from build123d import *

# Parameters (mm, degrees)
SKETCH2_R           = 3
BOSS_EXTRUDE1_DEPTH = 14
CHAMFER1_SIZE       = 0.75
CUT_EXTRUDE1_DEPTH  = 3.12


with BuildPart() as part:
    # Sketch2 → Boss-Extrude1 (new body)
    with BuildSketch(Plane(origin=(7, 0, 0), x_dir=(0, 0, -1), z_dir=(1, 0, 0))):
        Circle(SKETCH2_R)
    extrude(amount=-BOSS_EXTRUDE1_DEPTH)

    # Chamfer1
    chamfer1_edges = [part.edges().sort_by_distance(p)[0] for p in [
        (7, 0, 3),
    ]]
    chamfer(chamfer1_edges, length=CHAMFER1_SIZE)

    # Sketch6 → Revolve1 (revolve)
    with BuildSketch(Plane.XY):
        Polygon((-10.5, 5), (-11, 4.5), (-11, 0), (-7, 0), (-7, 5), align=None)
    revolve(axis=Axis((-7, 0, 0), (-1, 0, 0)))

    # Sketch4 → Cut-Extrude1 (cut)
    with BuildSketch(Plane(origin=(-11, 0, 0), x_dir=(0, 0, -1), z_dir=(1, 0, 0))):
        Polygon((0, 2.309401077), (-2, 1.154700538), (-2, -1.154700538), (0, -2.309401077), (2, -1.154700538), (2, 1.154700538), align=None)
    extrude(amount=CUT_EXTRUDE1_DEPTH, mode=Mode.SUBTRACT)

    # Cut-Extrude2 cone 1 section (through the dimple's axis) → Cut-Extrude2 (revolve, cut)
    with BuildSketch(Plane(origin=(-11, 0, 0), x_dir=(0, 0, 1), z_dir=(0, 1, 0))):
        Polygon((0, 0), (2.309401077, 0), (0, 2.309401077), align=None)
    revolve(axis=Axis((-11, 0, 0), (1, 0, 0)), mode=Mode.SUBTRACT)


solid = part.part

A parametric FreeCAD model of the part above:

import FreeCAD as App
import Part
import Sketcher
from FreeCAD import Vector
Q = App.Units.Quantity


def edges_at(feature, points):
    """Names of the edges that pass closest to the given points."""
    edges = feature.Shape.Edges
    near = lambda p: min(range(len(edges)), key=lambda i: edges[i].distToShape(Part.Vertex(*p))[0])
    return sorted({f"Edge{near(p) + 1}" for p in points})


def add_polygon(sketch, points):
    """Adds a closed chain of lines whose ends are joined by coincident constraints."""
    first, n = sketch.GeometryCount, len(points)
    for a, b in zip(points, points[1:] + points[:1]):
        sketch.addGeometry(Part.LineSegment(App.Vector(*a, 0), App.Vector(*b, 0)), False)
    for i in range(n):
        sketch.addConstraint(Sketcher.Constraint("Coincident", first + i, 2, first + (i + 1) % n, 1))

doc = App.newDocument("Part")
body = doc.addObject("PartDesign::Body", "Body")

# Sketch on YZ plane
sketch1 = body.newObject("Sketcher::SketchObject", "Sketch")
sketch1.AttachmentSupport = (doc.getObject("YZ_Plane"), [""])
sketch1.MapMode = "FlatFace"
sketch1.AttachmentOffset = App.Placement(Vector(0, 0, 7), App.Rotation())
sketch1.addGeometry(Part.Circle(Vector(0, 0, 0), Vector(0, 0, 1), 3), False)
sketch1.addConstraint(Sketcher.Constraint("Coincident", 0, 3, -1, 1))
sketch1.addConstraint(Sketcher.Constraint("Diameter", 0, Q("6 mm")))
pad1 = body.newObject("PartDesign::Pad", "Pad")
pad1.Profile = sketch1
pad1.Length = 14
pad1.Reversed = True
doc.recompute()

chamfer = body.newObject("PartDesign::Chamfer", "Chamfer")
chamfer.Base = (pad1, edges_at(pad1, [(7, 0, 3)]))
chamfer.Size = 0.75

# Sketch on XY plane
sketch2 = body.newObject("Sketcher::SketchObject", "Sketch001")
sketch2.AttachmentSupport = (doc.getObject("XY_Plane"), [""])
sketch2.MapMode = "FlatFace"
add_polygon(sketch2, [(-10.5, 5), (-11, 4.5), (-11, 0), (-7, 0), (-7, 5)])  # lines 0-4
sketch2.addConstraint(Sketcher.Constraint("Vertical", 1))
sketch2.addConstraint(Sketcher.Constraint("Horizontal", 2))
sketch2.addConstraint(Sketcher.Constraint("Vertical", 3))
sketch2.addConstraint(Sketcher.Constraint("Horizontal", 4))
sketch2.addConstraint(Sketcher.Constraint("PointOnObject", 1, 2, -1))
sketch2.addConstraint(Sketcher.Constraint("DistanceX", 2, 1, 2, 2, Q("4 mm")))
sketch2.addConstraint(Sketcher.Constraint("DistanceY", 3, 1, 3, 2, Q("5 mm")))
sketch2.addConstraint(Sketcher.Constraint("Angle", 0, Q("-135 deg")))
sketch2.addConstraint(Sketcher.Constraint("DistanceX", 4, 2, 4, 1, Q("3.5 mm")))
sketch2.addConstraint(Sketcher.Constraint("DistanceX", 0, 2, -1, 1, Q("11 mm")))
revolution = body.newObject("PartDesign::Revolution", "Revolution")
revolution.Profile = sketch2
revolution.ReferenceAxis = (sketch2, ["H_Axis"])
revolution.Angle = 360

# Sketch on YZ plane
sketch3 = body.newObject("Sketcher::SketchObject", "Sketch002")
sketch3.AttachmentSupport = (doc.getObject("YZ_Plane"), [""])
sketch3.MapMode = "FlatFace"
sketch3.AttachmentOffset = App.Placement(Vector(0, 0, -11), App.Rotation())
add_polygon(sketch3, [(2.309401, 0), (1.154701, 2), (-1.154701, 2), (-2.309401, 0), (-1.154701, -2), (1.154701, -2)])  # lines 0-5
sketch3.addConstraint(Sketcher.Constraint("Horizontal", 1))
sketch3.addConstraint(Sketcher.Constraint("Horizontal", 4))
sketch3.addConstraint(Sketcher.Constraint("Symmetric", 0, 2, 3, 2, -1, 1))
sketch3.addConstraint(Sketcher.Constraint("Symmetric", 2, 2, 5, 2, -1, 1))
sketch3.addConstraint(Sketcher.Constraint("PointOnObject", 2, 2, -1))
sketch3.addConstraint(Sketcher.Constraint("Parallel", 2, 5))
sketch3.addConstraint(Sketcher.Constraint("Vertical", 1, 2, 3, 2))
sketch3.addConstraint(Sketcher.Constraint("Angle", 0, Q("120 deg")))
sketch3.addConstraint(Sketcher.Constraint("DistanceY", -1, 1, 0, 2, Q("2 mm")))
sketch3.addConstraint(Sketcher.Constraint("DistanceX", 1, 2, 1, 1, Q("2.309401 mm")))
pocket1 = body.newObject("PartDesign::Pocket", "Pocket")
pocket1.Profile = sketch3
pocket1.Length = 3.12
pocket1.Reversed = True

# Sketch on XZ plane
sketch4 = body.newObject("Sketcher::SketchObject", "Sketch003")
sketch4.AttachmentSupport = (doc.getObject("XZ_Plane"), [""])
sketch4.MapMode = "FlatFace"
add_polygon(sketch4, [(-11, 0), (-11, 2.309401), (-8.690599, 0)])  # lines 0-2
sketch4.addConstraint(Sketcher.Constraint("Vertical", 0))
sketch4.addConstraint(Sketcher.Constraint("Horizontal", 2))
sketch4.addConstraint(Sketcher.Constraint("PointOnObject", 1, 2, -1))
sketch4.addConstraint(Sketcher.Constraint("Equal", 2, 0))
sketch4.addConstraint(Sketcher.Constraint("DistanceX", 0, 2, -1, 1, Q("11 mm")))
sketch4.addConstraint(Sketcher.Constraint("DistanceX", 2, 2, 2, 1, Q("2.309401 mm")))
groove = body.newObject("PartDesign::Groove", "Groove")
groove.Profile = sketch4
groove.ReferenceAxis = (sketch4, ["H_Axis"])
groove.Angle = 360

doc.recompute()
